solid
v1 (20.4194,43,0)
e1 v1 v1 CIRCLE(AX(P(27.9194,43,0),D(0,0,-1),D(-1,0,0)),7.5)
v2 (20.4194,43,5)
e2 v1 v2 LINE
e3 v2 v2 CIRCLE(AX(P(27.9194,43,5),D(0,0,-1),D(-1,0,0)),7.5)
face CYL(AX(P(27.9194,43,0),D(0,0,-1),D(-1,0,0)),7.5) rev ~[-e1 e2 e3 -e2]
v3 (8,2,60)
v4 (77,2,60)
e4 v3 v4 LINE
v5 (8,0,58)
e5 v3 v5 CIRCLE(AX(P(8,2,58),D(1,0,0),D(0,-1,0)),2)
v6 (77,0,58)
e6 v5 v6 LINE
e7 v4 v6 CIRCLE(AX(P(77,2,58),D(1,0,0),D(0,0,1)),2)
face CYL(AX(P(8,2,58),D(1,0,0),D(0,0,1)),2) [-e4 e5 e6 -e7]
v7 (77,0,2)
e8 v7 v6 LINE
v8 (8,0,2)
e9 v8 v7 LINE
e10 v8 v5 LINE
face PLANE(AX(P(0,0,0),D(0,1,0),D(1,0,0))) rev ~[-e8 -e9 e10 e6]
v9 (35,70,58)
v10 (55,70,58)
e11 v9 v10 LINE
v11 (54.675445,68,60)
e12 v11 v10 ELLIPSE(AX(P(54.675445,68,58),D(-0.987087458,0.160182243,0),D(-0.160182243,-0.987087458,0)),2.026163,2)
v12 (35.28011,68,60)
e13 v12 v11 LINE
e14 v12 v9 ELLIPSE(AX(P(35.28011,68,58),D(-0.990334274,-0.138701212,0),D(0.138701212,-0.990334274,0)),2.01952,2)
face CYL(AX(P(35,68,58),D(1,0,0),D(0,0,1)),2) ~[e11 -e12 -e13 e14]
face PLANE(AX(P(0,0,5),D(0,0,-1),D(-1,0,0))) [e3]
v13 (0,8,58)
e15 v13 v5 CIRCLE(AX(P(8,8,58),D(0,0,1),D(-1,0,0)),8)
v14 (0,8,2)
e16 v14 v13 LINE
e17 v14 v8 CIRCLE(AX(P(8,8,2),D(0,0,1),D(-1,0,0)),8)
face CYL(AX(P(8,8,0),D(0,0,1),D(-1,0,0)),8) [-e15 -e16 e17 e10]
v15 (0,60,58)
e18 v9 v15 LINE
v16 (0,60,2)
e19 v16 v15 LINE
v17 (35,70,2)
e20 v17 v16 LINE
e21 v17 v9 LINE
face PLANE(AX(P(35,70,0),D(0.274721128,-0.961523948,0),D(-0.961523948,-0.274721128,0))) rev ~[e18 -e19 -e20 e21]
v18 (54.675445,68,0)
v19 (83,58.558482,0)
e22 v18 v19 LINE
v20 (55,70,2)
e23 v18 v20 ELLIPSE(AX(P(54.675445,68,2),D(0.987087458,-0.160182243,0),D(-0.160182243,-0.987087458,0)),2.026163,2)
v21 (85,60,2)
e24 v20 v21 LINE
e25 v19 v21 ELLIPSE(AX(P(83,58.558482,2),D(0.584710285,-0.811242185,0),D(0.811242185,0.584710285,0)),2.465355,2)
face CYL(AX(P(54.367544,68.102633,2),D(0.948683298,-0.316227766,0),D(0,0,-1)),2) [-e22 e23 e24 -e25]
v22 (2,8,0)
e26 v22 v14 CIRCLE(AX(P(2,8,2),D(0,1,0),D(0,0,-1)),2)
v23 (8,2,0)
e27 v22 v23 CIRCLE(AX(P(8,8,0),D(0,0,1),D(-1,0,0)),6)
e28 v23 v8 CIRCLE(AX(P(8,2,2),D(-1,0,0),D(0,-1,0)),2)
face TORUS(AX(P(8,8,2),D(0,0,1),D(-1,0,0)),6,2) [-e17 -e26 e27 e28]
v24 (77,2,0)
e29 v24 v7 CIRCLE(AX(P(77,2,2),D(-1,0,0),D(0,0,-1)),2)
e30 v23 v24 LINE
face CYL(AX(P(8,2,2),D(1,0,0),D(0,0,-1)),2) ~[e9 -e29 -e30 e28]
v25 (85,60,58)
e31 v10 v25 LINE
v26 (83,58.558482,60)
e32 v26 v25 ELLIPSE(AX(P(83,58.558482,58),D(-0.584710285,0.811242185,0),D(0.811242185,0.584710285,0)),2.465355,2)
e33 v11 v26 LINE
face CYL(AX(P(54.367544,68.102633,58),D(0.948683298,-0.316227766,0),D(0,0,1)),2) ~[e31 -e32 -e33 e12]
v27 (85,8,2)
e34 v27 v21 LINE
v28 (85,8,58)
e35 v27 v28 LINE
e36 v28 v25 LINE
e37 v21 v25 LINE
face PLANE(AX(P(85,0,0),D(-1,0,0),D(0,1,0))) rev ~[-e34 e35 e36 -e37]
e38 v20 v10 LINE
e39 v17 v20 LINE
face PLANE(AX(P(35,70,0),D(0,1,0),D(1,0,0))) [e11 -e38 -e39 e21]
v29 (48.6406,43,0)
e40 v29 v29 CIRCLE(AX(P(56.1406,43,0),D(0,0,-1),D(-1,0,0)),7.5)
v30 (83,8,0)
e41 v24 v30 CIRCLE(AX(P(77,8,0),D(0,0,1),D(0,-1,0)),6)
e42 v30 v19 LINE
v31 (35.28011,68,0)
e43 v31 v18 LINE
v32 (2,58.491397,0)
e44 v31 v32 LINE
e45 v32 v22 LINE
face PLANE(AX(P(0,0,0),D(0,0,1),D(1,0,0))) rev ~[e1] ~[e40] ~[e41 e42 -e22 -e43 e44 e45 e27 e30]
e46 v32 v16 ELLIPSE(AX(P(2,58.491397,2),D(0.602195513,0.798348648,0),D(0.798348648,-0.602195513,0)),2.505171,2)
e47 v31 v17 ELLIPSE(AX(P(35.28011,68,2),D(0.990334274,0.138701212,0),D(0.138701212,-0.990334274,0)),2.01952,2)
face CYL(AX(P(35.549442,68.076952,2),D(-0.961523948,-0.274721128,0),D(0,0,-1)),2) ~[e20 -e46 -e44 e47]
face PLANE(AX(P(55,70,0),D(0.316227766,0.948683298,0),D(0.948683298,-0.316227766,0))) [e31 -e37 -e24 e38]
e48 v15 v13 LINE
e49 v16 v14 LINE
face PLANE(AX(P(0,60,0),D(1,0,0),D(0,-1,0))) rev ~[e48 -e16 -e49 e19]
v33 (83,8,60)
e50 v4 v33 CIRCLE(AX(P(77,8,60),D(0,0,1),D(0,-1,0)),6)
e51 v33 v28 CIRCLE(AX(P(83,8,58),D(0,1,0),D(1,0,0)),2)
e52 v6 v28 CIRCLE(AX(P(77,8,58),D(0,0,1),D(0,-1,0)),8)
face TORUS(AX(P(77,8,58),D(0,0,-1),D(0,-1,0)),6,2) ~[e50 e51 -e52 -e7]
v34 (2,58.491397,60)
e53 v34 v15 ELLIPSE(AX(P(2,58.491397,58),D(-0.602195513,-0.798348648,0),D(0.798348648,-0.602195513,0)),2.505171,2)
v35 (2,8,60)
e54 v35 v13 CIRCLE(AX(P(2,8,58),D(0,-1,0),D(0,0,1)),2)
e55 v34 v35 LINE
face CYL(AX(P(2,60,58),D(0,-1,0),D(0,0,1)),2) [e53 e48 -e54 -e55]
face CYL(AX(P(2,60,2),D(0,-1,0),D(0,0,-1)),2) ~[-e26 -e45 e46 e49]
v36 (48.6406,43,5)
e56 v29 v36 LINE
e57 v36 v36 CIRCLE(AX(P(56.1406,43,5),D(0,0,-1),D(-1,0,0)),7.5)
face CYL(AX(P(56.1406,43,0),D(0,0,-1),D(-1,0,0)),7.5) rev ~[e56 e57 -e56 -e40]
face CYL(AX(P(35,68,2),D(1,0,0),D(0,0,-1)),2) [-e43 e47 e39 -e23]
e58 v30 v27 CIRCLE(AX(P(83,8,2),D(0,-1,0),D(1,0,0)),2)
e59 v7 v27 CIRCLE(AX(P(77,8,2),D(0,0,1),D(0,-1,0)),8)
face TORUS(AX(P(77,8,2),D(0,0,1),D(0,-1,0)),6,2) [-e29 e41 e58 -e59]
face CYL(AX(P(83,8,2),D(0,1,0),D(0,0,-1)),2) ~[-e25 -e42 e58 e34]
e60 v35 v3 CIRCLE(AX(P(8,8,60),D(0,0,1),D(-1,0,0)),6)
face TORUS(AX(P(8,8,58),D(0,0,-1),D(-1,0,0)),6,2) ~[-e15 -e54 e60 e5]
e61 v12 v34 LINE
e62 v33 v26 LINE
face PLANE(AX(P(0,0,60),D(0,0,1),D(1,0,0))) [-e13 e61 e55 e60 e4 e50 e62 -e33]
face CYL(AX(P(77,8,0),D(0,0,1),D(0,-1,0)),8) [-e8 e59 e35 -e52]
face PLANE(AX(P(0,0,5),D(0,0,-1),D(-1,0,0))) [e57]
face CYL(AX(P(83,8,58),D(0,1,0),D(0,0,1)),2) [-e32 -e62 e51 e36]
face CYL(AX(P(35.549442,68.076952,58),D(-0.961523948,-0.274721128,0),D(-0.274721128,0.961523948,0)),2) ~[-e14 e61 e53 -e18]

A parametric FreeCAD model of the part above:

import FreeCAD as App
import Part
import Sketcher
from FreeCAD import Vector
Q = App.Units.Quantity


def edges_at(feature, points):
    """Names of the edges that pass closest to the given points."""
    edges = feature.Shape.Edges
    near = lambda p: min(range(len(edges)), key=lambda i: edges[i].distToShape(Part.Vertex(*p))[0])
    return sorted({f"Edge{near(p) + 1}" for p in points})


def add_polygon(sketch, points):
    """Adds a closed chain of lines whose ends are joined by coincident constraints."""
    first, n = sketch.GeometryCount, len(points)
    for a, b in zip(points, points[1:] + points[:1]):
        sketch.addGeometry(Part.LineSegment(App.Vector(*a, 0), App.Vector(*b, 0)), False)
    for i in range(n):
        sketch.addConstraint(Sketcher.Constraint("Coincident", first + i, 2, first + (i + 1) % n, 1))

doc = App.newDocument("Part")
body = doc.addObject("PartDesign::Body", "Body")

# Sketch on XY plane
sketch1 = doc.addObject("Sketcher::SketchObject", "Sketch")
body.addObject(sketch1)
sketch1.AttachmentSupport = (doc.XY_Plane, [""])
sketch1.MapMode = "FlatFace"
add_polygon(sketch1, [(0, 60), (0, 0), (85, 0), (85, 60), (55, 70), (35, 70)])  # lines 0-5
sketch1.addConstraint([
    Sketcher.Constraint("Vertical", 0),
    Sketcher.Constraint("Horizontal", 1),
    Sketcher.Constraint("Vertical", 2),
    Sketcher.Constraint("Horizontal", 4),
    Sketcher.Constraint("Coincident", 0, 2, -1, 1),
    Sketcher.Constraint("Horizontal", 2, 2, 5, 2),
    Sketcher.Constraint("DistanceX", 1, 1, 1, 2, Q("85 mm")),
    Sketcher.Constraint("DistanceX", 4, 2, 4, 1, Q("20 mm")),
    Sketcher.Constraint("DistanceY", 0, 2, 0, 1, Q("60 mm")),
    Sketcher.Constraint("DistanceX", -1, 1, 4, 2, Q("35 mm")),
    Sketcher.Constraint("DistanceY", 2, 2, 3, 2, Q("10 mm")),
])
pad1 = doc.addObject("PartDesign::Pad", "Pad")
body.addObject(pad1)
pad1.Profile = sketch1
pad1.Length = 60
doc.recompute()

fillet = doc.addObject("PartDesign::Fillet", "Fillet")
body.addObject(fillet)
fillet.Base = (pad1, edges_at(pad1, [(85, 0, 30), (0, 0, 30)]))
fillet.Radius = 8
doc.recompute()

fillet2 = doc.addObject("PartDesign::Fillet", "Fillet001")
body.addObject(fillet2)
fillet2.Base = (fillet, edges_at(fillet, [
    (82.657, 2.343, 60),
    (42.5, 0, 60),
    (2.343, 2.343, 60),
    (0, 34, 60),
    (85, 34, 60),
    (70, 65, 60),
    (45, 70, 60),
    (17.5, 65, 60),
    (82.657, 2.343, 0),
    (42.5, 0, 0),
    (2.343, 2.343, 0),
    (0, 34, 0),
    (85, 34, 0),
    (70, 65, 0),
    (45, 70, 0),
    (17.5, 65, 0),
]))
fillet2.Radius = 2

# Sketch on XY plane
sketch2 = doc.addObject("Sketcher::SketchObject", "Sketch001")
body.addObject(sketch2)
sketch2.AttachmentSupport = (doc.XY_Plane, [""])
sketch2.MapMode = "FlatFace"
sketch2.addGeometry([
    Part.Circle(Vector(28, 43, 0), Vector(0, 0, 1), 8),
    Part.Circle(Vector(56, 43, 0), Vector(0, 0, 1), 8),
], False)
sketch2.addConstraint([
    Sketcher.Constraint("Equal", 0, 1),
    Sketcher.Constraint("Horizontal", 0, 3, 1, 3),
    Sketcher.Constraint("Diameter", 0, Q("15 mm")),
    Sketcher.Constraint("DistanceY", -1, 1, 0, 3, Q("43 mm")),
    Sketcher.Constraint("DistanceX", -1, 1, 0, 3, Q("27.9194 mm")),
    Sketcher.Constraint("DistanceX", -1, 1, 1, 3, Q("56.1406 mm")),
])
pocket1 = doc.addObject("PartDesign::Pocket", "Pocket")
body.addObject(pocket1)
pocket1.Profile = sketch2
pocket1.Length = 5
pocket1.Reversed = True

doc.recompute()
